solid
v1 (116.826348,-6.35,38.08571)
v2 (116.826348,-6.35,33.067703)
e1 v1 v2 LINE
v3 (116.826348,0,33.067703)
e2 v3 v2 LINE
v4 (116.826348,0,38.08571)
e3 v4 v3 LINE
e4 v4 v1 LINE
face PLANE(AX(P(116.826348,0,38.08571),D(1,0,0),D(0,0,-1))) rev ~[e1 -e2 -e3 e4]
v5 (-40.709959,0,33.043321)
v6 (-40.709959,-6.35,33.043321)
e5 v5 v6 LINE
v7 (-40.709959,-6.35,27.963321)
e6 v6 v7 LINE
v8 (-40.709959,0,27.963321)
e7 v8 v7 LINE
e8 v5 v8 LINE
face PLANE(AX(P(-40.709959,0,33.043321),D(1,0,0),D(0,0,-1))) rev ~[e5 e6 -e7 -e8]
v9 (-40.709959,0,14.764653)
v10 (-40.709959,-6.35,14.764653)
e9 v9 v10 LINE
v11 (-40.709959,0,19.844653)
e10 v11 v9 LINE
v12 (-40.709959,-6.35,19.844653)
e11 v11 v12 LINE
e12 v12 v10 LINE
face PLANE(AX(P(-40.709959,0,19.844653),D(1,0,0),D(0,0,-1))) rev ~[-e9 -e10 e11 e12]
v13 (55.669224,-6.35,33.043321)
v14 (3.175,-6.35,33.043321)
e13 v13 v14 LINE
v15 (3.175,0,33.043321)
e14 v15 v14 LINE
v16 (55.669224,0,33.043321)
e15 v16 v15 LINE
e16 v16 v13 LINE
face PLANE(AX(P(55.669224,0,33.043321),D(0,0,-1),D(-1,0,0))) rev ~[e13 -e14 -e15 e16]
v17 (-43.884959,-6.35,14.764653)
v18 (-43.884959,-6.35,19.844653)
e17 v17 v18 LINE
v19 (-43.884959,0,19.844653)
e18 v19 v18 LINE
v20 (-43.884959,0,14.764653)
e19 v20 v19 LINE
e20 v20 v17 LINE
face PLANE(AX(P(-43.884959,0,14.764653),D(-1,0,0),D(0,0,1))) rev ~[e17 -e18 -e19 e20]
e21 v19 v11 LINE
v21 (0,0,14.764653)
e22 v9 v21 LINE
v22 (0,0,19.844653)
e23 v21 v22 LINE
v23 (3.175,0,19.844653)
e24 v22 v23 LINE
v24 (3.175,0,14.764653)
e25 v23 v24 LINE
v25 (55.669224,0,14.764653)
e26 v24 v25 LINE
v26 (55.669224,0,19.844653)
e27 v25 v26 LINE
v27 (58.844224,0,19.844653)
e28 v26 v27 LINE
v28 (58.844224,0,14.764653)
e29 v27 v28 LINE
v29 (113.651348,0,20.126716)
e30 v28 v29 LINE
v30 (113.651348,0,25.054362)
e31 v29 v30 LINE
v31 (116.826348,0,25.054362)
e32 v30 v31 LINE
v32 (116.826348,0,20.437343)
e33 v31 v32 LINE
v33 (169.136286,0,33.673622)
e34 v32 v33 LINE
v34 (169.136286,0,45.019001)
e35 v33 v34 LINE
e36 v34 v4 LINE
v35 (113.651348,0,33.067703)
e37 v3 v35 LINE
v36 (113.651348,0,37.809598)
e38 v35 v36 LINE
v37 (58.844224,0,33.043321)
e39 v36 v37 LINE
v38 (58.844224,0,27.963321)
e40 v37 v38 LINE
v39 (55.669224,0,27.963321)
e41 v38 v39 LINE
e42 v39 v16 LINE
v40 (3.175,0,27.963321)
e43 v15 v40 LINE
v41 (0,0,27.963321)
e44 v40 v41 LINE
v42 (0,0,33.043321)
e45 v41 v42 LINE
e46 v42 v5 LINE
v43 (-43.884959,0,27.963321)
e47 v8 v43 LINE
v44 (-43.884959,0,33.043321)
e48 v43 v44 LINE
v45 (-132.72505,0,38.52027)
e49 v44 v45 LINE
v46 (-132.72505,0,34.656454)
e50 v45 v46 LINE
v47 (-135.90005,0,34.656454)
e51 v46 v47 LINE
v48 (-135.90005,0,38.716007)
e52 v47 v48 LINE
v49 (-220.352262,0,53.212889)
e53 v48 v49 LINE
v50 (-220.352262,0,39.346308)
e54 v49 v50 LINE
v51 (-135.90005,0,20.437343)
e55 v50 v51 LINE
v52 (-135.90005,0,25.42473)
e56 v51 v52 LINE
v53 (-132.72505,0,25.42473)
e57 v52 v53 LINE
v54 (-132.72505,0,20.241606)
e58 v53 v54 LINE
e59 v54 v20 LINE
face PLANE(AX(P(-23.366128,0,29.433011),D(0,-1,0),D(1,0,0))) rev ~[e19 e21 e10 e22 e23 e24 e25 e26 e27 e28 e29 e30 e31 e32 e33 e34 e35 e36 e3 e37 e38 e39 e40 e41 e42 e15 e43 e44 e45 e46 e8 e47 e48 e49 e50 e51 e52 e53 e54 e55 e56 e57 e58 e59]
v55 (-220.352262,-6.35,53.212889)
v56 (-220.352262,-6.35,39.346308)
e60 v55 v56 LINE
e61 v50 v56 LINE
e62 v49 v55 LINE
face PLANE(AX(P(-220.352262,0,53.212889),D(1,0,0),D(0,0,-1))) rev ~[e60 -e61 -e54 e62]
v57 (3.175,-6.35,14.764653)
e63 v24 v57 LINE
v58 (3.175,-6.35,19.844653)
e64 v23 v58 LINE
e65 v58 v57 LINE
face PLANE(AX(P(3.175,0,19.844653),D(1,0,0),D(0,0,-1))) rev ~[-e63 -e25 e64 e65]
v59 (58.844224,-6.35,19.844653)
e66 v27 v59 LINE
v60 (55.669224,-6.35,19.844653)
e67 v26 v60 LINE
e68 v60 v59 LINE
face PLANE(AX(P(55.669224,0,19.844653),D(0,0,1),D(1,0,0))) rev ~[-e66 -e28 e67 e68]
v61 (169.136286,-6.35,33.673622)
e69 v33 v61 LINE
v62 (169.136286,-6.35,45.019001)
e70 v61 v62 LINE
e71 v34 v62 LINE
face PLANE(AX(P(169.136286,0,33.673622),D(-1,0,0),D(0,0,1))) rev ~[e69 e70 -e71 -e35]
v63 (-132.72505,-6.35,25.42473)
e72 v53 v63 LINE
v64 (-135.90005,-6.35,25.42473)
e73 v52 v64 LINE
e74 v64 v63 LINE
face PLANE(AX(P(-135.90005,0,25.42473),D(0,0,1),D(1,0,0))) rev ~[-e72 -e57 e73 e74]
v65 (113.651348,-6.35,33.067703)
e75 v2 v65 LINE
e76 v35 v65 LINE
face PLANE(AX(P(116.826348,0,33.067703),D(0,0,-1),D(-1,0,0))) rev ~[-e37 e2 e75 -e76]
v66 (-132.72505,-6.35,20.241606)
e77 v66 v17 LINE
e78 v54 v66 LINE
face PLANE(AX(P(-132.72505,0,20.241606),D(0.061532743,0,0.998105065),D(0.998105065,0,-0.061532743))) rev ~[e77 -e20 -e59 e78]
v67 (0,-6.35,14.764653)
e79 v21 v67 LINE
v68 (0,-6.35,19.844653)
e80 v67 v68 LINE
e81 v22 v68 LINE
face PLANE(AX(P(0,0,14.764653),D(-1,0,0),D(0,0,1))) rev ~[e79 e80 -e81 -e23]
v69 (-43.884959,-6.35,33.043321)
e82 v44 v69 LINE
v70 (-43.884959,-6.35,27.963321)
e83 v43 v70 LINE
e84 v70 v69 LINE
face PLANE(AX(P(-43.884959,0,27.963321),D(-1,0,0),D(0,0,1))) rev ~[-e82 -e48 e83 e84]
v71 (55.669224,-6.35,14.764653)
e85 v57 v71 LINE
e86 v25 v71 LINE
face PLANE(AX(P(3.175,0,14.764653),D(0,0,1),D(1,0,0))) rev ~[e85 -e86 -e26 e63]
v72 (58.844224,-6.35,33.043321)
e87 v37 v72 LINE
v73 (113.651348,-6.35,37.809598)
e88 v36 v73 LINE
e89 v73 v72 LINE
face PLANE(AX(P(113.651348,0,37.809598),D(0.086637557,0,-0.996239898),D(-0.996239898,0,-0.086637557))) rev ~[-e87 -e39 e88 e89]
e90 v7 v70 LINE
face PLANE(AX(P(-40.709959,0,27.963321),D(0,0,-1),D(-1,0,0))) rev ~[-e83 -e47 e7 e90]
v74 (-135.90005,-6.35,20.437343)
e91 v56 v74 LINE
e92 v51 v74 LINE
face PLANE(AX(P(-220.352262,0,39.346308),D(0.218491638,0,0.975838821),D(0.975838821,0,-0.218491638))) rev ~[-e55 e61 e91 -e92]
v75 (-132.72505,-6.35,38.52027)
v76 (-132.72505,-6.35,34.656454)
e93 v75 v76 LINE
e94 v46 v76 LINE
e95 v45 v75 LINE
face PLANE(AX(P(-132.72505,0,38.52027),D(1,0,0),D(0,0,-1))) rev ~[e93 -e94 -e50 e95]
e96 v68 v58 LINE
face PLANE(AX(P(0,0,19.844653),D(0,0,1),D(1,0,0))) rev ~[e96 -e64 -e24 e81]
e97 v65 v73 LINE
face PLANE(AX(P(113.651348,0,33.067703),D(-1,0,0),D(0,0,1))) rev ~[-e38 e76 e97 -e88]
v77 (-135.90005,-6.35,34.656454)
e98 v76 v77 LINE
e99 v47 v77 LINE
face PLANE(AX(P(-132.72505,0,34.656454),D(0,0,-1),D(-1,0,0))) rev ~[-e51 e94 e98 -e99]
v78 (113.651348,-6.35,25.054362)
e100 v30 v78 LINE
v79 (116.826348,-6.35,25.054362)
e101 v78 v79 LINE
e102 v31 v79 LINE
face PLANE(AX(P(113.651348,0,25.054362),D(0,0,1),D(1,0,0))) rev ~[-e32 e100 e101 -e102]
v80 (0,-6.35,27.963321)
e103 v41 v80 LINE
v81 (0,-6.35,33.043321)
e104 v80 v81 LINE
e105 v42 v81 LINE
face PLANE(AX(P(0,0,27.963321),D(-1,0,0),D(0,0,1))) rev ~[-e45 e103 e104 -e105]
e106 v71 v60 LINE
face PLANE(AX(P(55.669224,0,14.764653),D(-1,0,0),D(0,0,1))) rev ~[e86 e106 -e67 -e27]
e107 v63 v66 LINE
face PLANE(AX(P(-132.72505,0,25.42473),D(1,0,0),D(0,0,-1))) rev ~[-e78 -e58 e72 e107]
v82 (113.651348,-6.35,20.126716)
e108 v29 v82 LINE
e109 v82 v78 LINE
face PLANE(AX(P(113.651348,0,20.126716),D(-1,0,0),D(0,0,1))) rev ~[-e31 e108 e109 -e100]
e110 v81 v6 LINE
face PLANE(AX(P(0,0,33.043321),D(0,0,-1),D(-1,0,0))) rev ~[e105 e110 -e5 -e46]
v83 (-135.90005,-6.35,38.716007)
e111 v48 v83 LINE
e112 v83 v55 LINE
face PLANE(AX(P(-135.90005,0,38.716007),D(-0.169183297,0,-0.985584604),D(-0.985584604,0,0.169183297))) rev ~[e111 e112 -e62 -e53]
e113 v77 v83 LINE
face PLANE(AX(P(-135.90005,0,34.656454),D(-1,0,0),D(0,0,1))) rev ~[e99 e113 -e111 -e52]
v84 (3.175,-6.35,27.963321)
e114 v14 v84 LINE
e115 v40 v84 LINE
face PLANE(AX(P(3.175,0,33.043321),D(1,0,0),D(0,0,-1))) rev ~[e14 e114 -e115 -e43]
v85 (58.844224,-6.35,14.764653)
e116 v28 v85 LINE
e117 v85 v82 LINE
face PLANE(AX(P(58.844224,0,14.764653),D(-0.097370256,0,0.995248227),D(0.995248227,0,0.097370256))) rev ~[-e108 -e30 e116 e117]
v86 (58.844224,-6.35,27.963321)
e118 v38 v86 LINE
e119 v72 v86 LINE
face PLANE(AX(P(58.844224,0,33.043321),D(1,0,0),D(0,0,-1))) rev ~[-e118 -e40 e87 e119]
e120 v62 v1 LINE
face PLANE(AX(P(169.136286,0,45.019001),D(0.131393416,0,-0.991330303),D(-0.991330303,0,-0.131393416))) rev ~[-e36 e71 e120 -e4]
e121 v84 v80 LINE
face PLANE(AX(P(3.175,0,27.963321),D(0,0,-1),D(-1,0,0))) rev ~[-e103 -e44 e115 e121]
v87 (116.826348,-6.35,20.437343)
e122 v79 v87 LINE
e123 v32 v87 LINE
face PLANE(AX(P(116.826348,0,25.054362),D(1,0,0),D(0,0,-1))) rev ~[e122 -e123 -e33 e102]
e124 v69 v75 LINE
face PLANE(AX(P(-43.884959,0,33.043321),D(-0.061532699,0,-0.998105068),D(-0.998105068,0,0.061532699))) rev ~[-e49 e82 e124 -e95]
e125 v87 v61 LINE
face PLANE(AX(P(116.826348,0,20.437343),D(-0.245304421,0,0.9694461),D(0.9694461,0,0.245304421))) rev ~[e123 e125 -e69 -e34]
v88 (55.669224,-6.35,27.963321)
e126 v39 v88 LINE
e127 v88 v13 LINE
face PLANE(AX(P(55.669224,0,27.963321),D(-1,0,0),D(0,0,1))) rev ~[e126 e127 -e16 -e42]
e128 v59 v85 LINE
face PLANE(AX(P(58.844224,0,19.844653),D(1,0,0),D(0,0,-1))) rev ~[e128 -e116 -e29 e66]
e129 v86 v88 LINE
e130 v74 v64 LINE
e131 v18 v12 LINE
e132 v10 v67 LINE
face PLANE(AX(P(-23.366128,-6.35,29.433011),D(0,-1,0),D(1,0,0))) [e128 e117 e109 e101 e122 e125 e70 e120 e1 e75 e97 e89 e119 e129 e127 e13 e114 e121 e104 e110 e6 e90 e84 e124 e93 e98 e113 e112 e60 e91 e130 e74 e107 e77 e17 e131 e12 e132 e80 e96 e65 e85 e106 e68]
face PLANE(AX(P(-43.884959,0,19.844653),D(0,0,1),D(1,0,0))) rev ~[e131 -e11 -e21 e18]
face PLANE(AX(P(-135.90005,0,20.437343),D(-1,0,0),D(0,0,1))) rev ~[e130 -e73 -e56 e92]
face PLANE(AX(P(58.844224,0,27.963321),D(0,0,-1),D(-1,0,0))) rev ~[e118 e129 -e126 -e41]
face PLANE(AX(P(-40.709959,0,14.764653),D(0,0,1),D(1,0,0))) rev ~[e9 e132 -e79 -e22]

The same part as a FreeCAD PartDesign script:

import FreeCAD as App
import Part
import Sketcher
from FreeCAD import Vector
Q = App.Units.Quantity

doc = App.newDocument("Part")
body = doc.addObject("PartDesign::Body", "Body")

sketch1 = doc.addObject("Sketcher::SketchObject", "Sketch")
body.addObject(sketch1)
sketch1.AttachmentSupport = (doc.XZ_Plane, [""])
sketch1.MapMode = "FlatFace"
sketch1.addGeometry(Part.LineSegment(Vector(-135.90005, 38.716007, 0), Vector(-220.352262, 53.212889, 0)), False)
sketch1.addGeometry(Part.LineSegment(Vector(-220.352262, 53.212889, 0), Vector(-220.352262, 39.346308, 0)), False)
sketch1.addGeometry(Part.LineSegment(Vector(-220.352262, 39.346308, 0), Vector(-135.90005, 20.437343, 0)), False)
sketch1.addGeometry(Part.LineSegment(Vector(-135.90005, 20.437343, 0), Vector(-135.90005, 25.42473, 0)), False)
sketch1.addGeometry(Part.LineSegment(Vector(-135.90005, 25.42473, 0), Vector(-132.72505, 25.42473, 0)), False)
sketch1.addGeometry(Part.LineSegment(Vector(-132.72505, 25.42473, 0), Vector(-132.72505, 20.241606, 0)), False)
sketch1.addGeometry(Part.LineSegment(Vector(-132.72505, 20.241606, 0), Vector(-43.884959, 14.764653, 0)), False)
sketch1.addGeometry(Part.LineSegment(Vector(-43.884959, 14.764653, 0), Vector(-43.884959, 19.844653, 0)), False)
sketch1.addGeometry(Part.LineSegment(Vector(-43.884959, 19.844653, 0), Vector(-40.709959, 19.844653, 0)), False)
sketch1.addGeometry(Part.LineSegment(Vector(-40.709959, 19.844653, 0), Vector(-40.709959, 14.764653, 0)), False)
sketch1.addGeometry(Part.LineSegment(Vector(-40.709959, 14.764653, 0), Vector(0, 14.764653, 0)), False)
sketch1.addGeometry(Part.LineSegment(Vector(0, 14.764653, 0), Vector(0, 19.844653, 0)), False)
sketch1.addGeometry(Part.LineSegment(Vector(0, 19.844653, 0), Vector(3.175, 19.844653, 0)), False)
sketch1.addGeometry(Part.LineSegment(Vector(3.175, 19.844653, 0), Vector(3.175, 14.764653, 0)), False)
sketch1.addGeometry(Part.LineSegment(Vector(3.175, 14.764653, 0), Vector(55.669224, 14.764653, 0)), False)
sketch1.addGeometry(Part.LineSegment(Vector(55.669224, 14.764653, 0), Vector(55.669224, 19.844653, 0)), False)
sketch1.addGeometry(Part.LineSegment(Vector(55.669224, 19.844653, 0), Vector(58.844224, 19.844653, 0)), False)
sketch1.addGeometry(Part.LineSegment(Vector(58.844224, 19.844653, 0), Vector(58.844224, 14.764653, 0)), False)
sketch1.addGeometry(Part.LineSegment(Vector(58.844224, 14.764653, 0), Vector(113.651348, 20.126716, 0)), False)
sketch1.addGeometry(Part.LineSegment(Vector(113.651348, 20.126716, 0), Vector(113.651348, 25.054362, 0)), False)
sketch1.addGeometry(Part.LineSegment(Vector(113.651348, 25.054362, 0), Vector(116.826348, 25.054362, 0)), False)
sketch1.addGeometry(Part.LineSegment(Vector(116.826348, 25.054362, 0), Vector(116.826348, 20.437343, 0)), False)
sketch1.addGeometry(Part.LineSegment(Vector(116.826348, 20.437343, 0), Vector(169.136286, 33.673622, 0)), False)
sketch1.addGeometry(Part.LineSegment(Vector(169.136286, 33.673622, 0), Vector(169.136286, 45.019001, 0)), False)
sketch1.addGeometry(Part.LineSegment(Vector(169.136286, 45.019001, 0), Vector(116.826348, 38.08571, 0)), False)
sketch1.addGeometry(Part.LineSegment(Vector(116.826348, 38.08571, 0), Vector(116.826348, 33.067703, 0)), False)
sketch1.addGeometry(Part.LineSegment(Vector(116.826348, 33.067703, 0), Vector(113.651348, 33.067703, 0)), False)
sketch1.addGeometry(Part.LineSegment(Vector(113.651348, 33.067703, 0), Vector(113.651348, 37.809598, 0)), False)
sketch1.addGeometry(Part.LineSegment(Vector(113.651348, 37.809598, 0), Vector(58.844224, 33.043321, 0)), False)
sketch1.addGeometry(Part.LineSegment(Vector(58.844224, 33.043321, 0), Vector(58.844224, 27.963321, 0)), False)
sketch1.addGeometry(Part.LineSegment(Vector(58.844224, 27.963321, 0), Vector(55.669224, 27.963321, 0)), False)
sketch1.addGeometry(Part.LineSegment(Vector(55.669224, 27.963321, 0), Vector(55.669224, 33.043321, 0)), False)
sketch1.addGeometry(Part.LineSegment(Vector(55.669224, 33.043321, 0), Vector(3.175, 33.043321, 0)), False)
sketch1.addGeometry(Part.LineSegment(Vector(3.175, 33.043321, 0), Vector(3.175, 27.963321, 0)), False)
sketch1.addGeometry(Part.LineSegment(Vector(3.175, 27.963321, 0), Vector(0, 27.963321, 0)), False)
sketch1.addGeometry(Part.LineSegment(Vector(0, 27.963321, 0), Vector(0, 33.043321, 0)), False)
sketch1.addGeometry(Part.LineSegment(Vector(0, 33.043321, 0), Vector(-40.709959, 33.043321, 0)), False)
sketch1.addGeometry(Part.LineSegment(Vector(-40.709959, 33.043321, 0), Vector(-40.709959, 27.963321, 0)), False)
sketch1.addGeometry(Part.LineSegment(Vector(-40.709959, 27.963321, 0), Vector(-43.884959, 27.963321, 0)), False)
sketch1.addGeometry(Part.LineSegment(Vector(-43.884959, 27.963321, 0), Vector(-43.884959, 33.043321, 0)), False)
sketch1.addGeometry(Part.LineSegment(Vector(-43.884959, 33.043321, 0), Vector(-132.72505, 38.52027, 0)), False)
sketch1.addGeometry(Part.LineSegment(Vector(-132.72505, 38.52027, 0), Vector(-132.72505, 34.656454, 0)), False)
sketch1.addGeometry(Part.LineSegment(Vector(-132.72505, 34.656454, 0), Vector(-135.90005, 34.656454, 0)), False)
sketch1.addGeometry(Part.LineSegment(Vector(-135.90005, 34.656454, 0), Vector(-135.90005, 38.716007, 0)), False)
sketch1.addConstraint(Sketcher.Constraint("Coincident", 0, 2, 1, 1))
sketch1.addConstraint(Sketcher.Constraint("Coincident", 1, 2, 2, 1))
sketch1.addConstraint(Sketcher.Constraint("Coincident", 2, 2, 3, 1))
sketch1.addConstraint(Sketcher.Constraint("Coincident", 3, 2, 4, 1))
sketch1.addConstraint(Sketcher.Constraint("Coincident", 4, 2, 5, 1))
sketch1.addConstraint(Sketcher.Constraint("Coincident", 5, 2, 6, 1))
sketch1.addConstraint(Sketcher.Constraint("Coincident", 6, 2, 7, 1))
sketch1.addConstraint(Sketcher.Constraint("Coincident", 7, 2, 8, 1))
sketch1.addConstraint(Sketcher.Constraint("Coincident", 8, 2, 9, 1))
sketch1.addConstraint(Sketcher.Constraint("Coincident", 9, 2, 10, 1))
sketch1.addConstraint(Sketcher.Constraint("Coincident", 10, 2, 11, 1))
sketch1.addConstraint(Sketcher.Constraint("Coincident", 11, 2, 12, 1))
sketch1.addConstraint(Sketcher.Constraint("Coincident", 12, 2, 13, 1))
sketch1.addConstraint(Sketcher.Constraint("Coincident", 13, 2, 14, 1))
sketch1.addConstraint(Sketcher.Constraint("Coincident", 14, 2, 15, 1))
sketch1.addConstraint(Sketcher.Constraint("Coincident", 15, 2, 16, 1))
sketch1.addConstraint(Sketcher.Constraint("Coincident", 16, 2, 17, 1))
sketch1.addConstraint(Sketcher.Constraint("Coincident", 17, 2, 18, 1))
sketch1.addConstraint(Sketcher.Constraint("Coincident", 18, 2, 19, 1))
sketch1.addConstraint(Sketcher.Constraint("Coincident", 19, 2, 20, 1))
sketch1.addConstraint(Sketcher.Constraint("Coincident", 20, 2, 21, 1))
sketch1.addConstraint(Sketcher.Constraint("Coincident", 21, 2, 22, 1))
sketch1.addConstraint(Sketcher.Constraint("Coincident", 22, 2, 23, 1))
sketch1.addConstraint(Sketcher.Constraint("Coincident", 23, 2, 24, 1))
sketch1.addConstraint(Sketcher.Constraint("Coincident", 24, 2, 25, 1))
sketch1.addConstraint(Sketcher.Constraint("Coincident", 25, 2, 26, 1))
sketch1.addConstraint(Sketcher.Constraint("Coincident", 26, 2, 27, 1))
sketch1.addConstraint(Sketcher.Constraint("Coincident", 27, 2, 28, 1))
sketch1.addConstraint(Sketcher.Constraint("Coincident", 28, 2, 29, 1))
sketch1.addConstraint(Sketcher.Constraint("Coincident", 29, 2, 30, 1))
sketch1.addConstraint(Sketcher.Constraint("Coincident", 30, 2, 31, 1))
sketch1.addConstraint(Sketcher.Constraint("Coincident", 31, 2, 32, 1))
sketch1.addConstraint(Sketcher.Constraint("Coincident", 32, 2, 33, 1))
sketch1.addConstraint(Sketcher.Constraint("Coincident", 33, 2, 34, 1))
sketch1.addConstraint(Sketcher.Constraint("Coincident", 34, 2, 35, 1))
sketch1.addConstraint(Sketcher.Constraint("Coincident", 35, 2, 36, 1))
sketch1.addConstraint(Sketcher.Constraint("Coincident", 36, 2, 37, 1))
sketch1.addConstraint(Sketcher.Constraint("Coincident", 37, 2, 38, 1))
sketch1.addConstraint(Sketcher.Constraint("Coincident", 38, 2, 39, 1))
sketch1.addConstraint(Sketcher.Constraint("Coincident", 39, 2, 40, 1))
sketch1.addConstraint(Sketcher.Constraint("Coincident", 40, 2, 41, 1))
sketch1.addConstraint(Sketcher.Constraint("Coincident", 41, 2, 42, 1))
sketch1.addConstraint(Sketcher.Constraint("Coincident", 42, 2, 43, 1))
sketch1.addConstraint(Sketcher.Constraint("Coincident", 43, 2, 0, 1))
sketch1.addConstraint(Sketcher.Constraint("Vertical", 1))
sketch1.addConstraint(Sketcher.Constraint("Vertical", 3))
sketch1.addConstraint(Sketcher.Constraint("Horizontal", 4))
sketch1.addConstraint(Sketcher.Constraint("Vertical", 5))
sketch1.addConstraint(Sketcher.Constraint("Vertical", 7))
sketch1.addConstraint(Sketcher.Constraint("Horizontal", 8))
sketch1.addConstraint(Sketcher.Constraint("Vertical", 9))
sketch1.addConstraint(Sketcher.Constraint("Horizontal", 10))
sketch1.addConstraint(Sketcher.Constraint("Vertical", 11))
sketch1.addConstraint(Sketcher.Constraint("Horizontal", 12))
sketch1.addConstraint(Sketcher.Constraint("Vertical", 13))
sketch1.addConstraint(Sketcher.Constraint("Horizontal", 14))
sketch1.addConstraint(Sketcher.Constraint("Vertical", 15))
sketch1.addConstraint(Sketcher.Constraint("Horizontal", 16))
sketch1.addConstraint(Sketcher.Constraint("Vertical", 17))
sketch1.addConstraint(Sketcher.Constraint("Vertical", 19))
sketch1.addConstraint(Sketcher.Constraint("Horizontal", 20))
sketch1.addConstraint(Sketcher.Constraint("Vertical", 21))
sketch1.addConstraint(Sketcher.Constraint("Vertical", 23))
sketch1.addConstraint(Sketcher.Constraint("Vertical", 25))
sketch1.addConstraint(Sketcher.Constraint("Horizontal", 26))
sketch1.addConstraint(Sketcher.Constraint("Vertical", 27))
sketch1.addConstraint(Sketcher.Constraint("Vertical", 29))
sketch1.addConstraint(Sketcher.Constraint("Horizontal", 30))
sketch1.addConstraint(Sketcher.Constraint("Vertical", 31))
sketch1.addConstraint(Sketcher.Constraint("Horizontal", 32))
sketch1.addConstraint(Sketcher.Constraint("Vertical", 33))
sketch1.addConstraint(Sketcher.Constraint("Horizontal", 34))
sketch1.addConstraint(Sketcher.Constraint("Vertical", 35))
sketch1.addConstraint(Sketcher.Constraint("Horizontal", 36))
sketch1.addConstraint(Sketcher.Constraint("Vertical", 37))
sketch1.addConstraint(Sketcher.Constraint("Horizontal", 38))
sketch1.addConstraint(Sketcher.Constraint("Vertical", 39))
sketch1.addConstraint(Sketcher.Constraint("Vertical", 41))
sketch1.addConstraint(Sketcher.Constraint("Horizontal", 42))
sketch1.addConstraint(Sketcher.Constraint("Vertical", 43))
sketch1.addConstraint(Sketcher.Constraint("PointOnObject", 10, 2, -2))
sketch1.addConstraint(Sketcher.Constraint("PointOnObject", 34, 2, -2))
sketch1.addConstraint(Sketcher.Constraint("Parallel", 6, 40))
sketch1.addConstraint(Sketcher.Constraint("Horizontal", 6, 2, 9, 2))
sketch1.addConstraint(Sketcher.Constraint("Horizontal", 8, 2, 11, 2))
sketch1.addConstraint(Sketcher.Constraint("Horizontal", 10, 2, 13, 2))
sketch1.addConstraint(Sketcher.Constraint("Horizontal", 12, 2, 15, 2))
sketch1.addConstraint(Sketcher.Constraint("Horizontal", 14, 2, 17, 2))
sketch1.addConstraint(Sketcher.Constraint("Horizontal", 2, 2, 21, 2))
sketch1.addConstraint(Sketcher.Constraint("Horizontal", 28, 2, 31, 2))
sketch1.addConstraint(Sketcher.Constraint("Horizontal", 30, 2, 33, 2))
sketch1.addConstraint(Sketcher.Constraint("Horizontal", 32, 2, 35, 2))
sketch1.addConstraint(Sketcher.Constraint("Horizontal", 34, 2, 37, 2))
sketch1.addConstraint(Sketcher.Constraint("Horizontal", 36, 2, 39, 2))
sketch1.addConstraint(Sketcher.Constraint("Vertical", 21, 2, 24, 2))
sketch1.addConstraint(Sketcher.Constraint("Vertical", 19, 2, 26, 2))
sketch1.addConstraint(Sketcher.Constraint("Vertical", 17, 2, 28, 2))
sketch1.addConstraint(Sketcher.Constraint("Vertical", 15, 2, 30, 2))
sketch1.addConstraint(Sketcher.Constraint("Vertical", 13, 2, 32, 2))
sketch1.addConstraint(Sketcher.Constraint("Vertical", 9, 2, 36, 2))
sketch1.addConstraint(Sketcher.Constraint("Vertical", 7, 2, 38, 2))
sketch1.addConstraint(Sketcher.Constraint("Vertical", 5, 2, 40, 2))
sketch1.addConstraint(Sketcher.Constraint("Vertical", 3, 2, 42, 2))
sketch1.addConstraint(Sketcher.Constraint("Equal", 4, 8))
sketch1.addConstraint(Sketcher.Constraint("Equal", 8, 12))
sketch1.addConstraint(Sketcher.Constraint("Equal", 12, 16))
sketch1.addConstraint(Sketcher.Constraint("Equal", 16, 20))
sketch1.addConstraint(Sketcher.Constraint("Equal", 17, 29))
sketch1.addConstraint(Sketcher.Constraint("DistanceY", 7, 1, 7, 2, Q("0.2 in")))
sketch1.addConstraint(Sketcher.Constraint("DistanceX", 4, 1, 4, 2, Q("0.125 in")))
sketch1.addConstraint(Sketcher.Constraint("Distance", 18, Q("55.068798 mm")))
sketch1.addConstraint(Sketcher.Constraint("DistanceX", 10, 1, 10, 2, Q("40.709959 mm")))
sketch1.addConstraint(Sketcher.Constraint("DistanceY", 1, 2, 1, 1, Q("13.866581 mm")))
sketch1.addConstraint(Sketcher.Constraint("DistanceY", 21, 2, 21, 1, Q("4.617019 mm")))
sketch1.addConstraint(Sketcher.Constraint("DistanceY", 23, 1, 23, 2, Q("11.345379 mm")))
sketch1.addConstraint(Sketcher.Constraint("DistanceY", -1, 1, 23, 2, Q("45.019001 mm")))
sketch1.addConstraint(Sketcher.Constraint("DistanceY", 5, 2, 1, 2, Q("19.104702 mm")))
sketch1.addConstraint(Sketcher.Constraint("Distance", 0, Q("85.68743 mm")))
sketch1.addConstraint(Sketcher.Constraint("DistanceX", 14, 1, 14, 2, Q("52.494224 mm")))
sketch1.addConstraint(Sketcher.Constraint("DistanceY", 3, 1, 3, 2, Q("4.987387 mm")))
sketch1.addConstraint(Sketcher.Constraint("DistanceY", 5, 2, 5, 1, Q("5.183124 mm")))
sketch1.addConstraint(Sketcher.Constraint("DistanceY", 19, 1, 19, 2, Q("4.927646 mm")))
sketch1.addConstraint(Sketcher.Constraint("DistanceY", 25, 2, 25, 1, Q("5.018007 mm")))
sketch1.addConstraint(Sketcher.Constraint("DistanceY", 27, 1, 27, 2, Q("4.741895 mm")))
sketch1.addConstraint(Sketcher.Constraint("DistanceY", 41, 2, 41, 1, Q("3.863816 mm")))
sketch1.addConstraint(Sketcher.Constraint("DistanceY", 43, 1, 43, 2, Q("4.059553 mm")))
sketch1.addConstraint(Sketcher.Constraint("DistanceX", 0, 2, -1, 1, Q("220.352262 mm")))
sketch1.addConstraint(Sketcher.Constraint("DistanceY", -1, 1, 0, 2, Q("53.212889 mm")))
sketch1.addConstraint(Sketcher.Constraint("DistanceX", 2, 2, -1, 1, Q("135.90005 mm")))
sketch1.addConstraint(Sketcher.Constraint("DistanceX", -1, 1, 18, 2, Q("113.651348 mm")))
sketch1.addConstraint(Sketcher.Constraint("DistanceY", -1, 1, 24, 2, Q("38.08571 mm")))
sketch1.addConstraint(Sketcher.Constraint("DistanceX", 20, 2, 22, 2, Q("52.309938 mm")))
pad1 = doc.addObject("PartDesign::Pad", "Pad")
body.addObject(pad1)
pad1.Profile = sketch1
pad1.Length = Q("0.25 in")

doc.recompute()
